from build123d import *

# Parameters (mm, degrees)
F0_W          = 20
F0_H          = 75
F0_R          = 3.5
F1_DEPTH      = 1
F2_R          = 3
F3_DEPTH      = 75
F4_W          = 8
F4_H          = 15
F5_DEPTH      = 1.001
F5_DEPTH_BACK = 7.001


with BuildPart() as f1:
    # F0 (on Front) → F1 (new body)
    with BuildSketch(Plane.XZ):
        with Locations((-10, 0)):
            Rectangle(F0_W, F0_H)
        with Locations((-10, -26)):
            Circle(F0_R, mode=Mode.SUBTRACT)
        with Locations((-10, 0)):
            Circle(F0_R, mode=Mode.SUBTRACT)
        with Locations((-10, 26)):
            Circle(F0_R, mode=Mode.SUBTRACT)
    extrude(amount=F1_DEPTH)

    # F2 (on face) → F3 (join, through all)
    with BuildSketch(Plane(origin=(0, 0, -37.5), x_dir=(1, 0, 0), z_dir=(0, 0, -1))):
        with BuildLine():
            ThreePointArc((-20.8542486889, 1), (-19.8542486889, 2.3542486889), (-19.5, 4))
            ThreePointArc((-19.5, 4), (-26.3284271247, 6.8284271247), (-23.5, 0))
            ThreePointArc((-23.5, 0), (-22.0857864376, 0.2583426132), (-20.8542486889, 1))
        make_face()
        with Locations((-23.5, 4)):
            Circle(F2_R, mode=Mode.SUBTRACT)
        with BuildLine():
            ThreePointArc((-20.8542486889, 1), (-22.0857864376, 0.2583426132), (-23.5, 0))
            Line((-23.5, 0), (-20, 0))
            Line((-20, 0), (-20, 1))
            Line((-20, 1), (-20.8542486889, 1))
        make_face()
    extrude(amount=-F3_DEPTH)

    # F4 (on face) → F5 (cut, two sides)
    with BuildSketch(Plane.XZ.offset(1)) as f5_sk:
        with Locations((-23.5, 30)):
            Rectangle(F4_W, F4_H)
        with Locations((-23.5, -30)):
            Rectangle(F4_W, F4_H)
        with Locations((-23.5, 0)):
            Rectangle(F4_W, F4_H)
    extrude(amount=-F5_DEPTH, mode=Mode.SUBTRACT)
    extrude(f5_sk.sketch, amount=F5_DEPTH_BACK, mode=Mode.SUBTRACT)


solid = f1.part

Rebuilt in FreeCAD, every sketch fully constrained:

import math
import FreeCAD as App
import Part
import Sketcher

V = App.Vector


def add_polygon(sketch, points):
    """Adds a closed chain of lines whose ends are joined by coincident constraints."""
    first, n = sketch.GeometryCount, len(points)
    for a, b in zip(points, points[1:] + points[:1]):
        sketch.addGeometry(Part.LineSegment(App.Vector(*a, 0), App.Vector(*b, 0)), False)
    for i in range(n):
        sketch.addConstraint(Sketcher.Constraint("Coincident", first + i, 2, first + (i + 1) % n, 1))

doc = App.newDocument("Part")
body = doc.addObject("PartDesign::Body", "Body")

# Sketch on XZ plane
sketch1 = body.newObject("Sketcher::SketchObject", "Sketch")
sketch1.AttachmentSupport = (doc.getObject("XZ_Plane"), [""])
sketch1.MapMode = "FlatFace"
add_polygon(sketch1, [(-20, 37.5), (-20, -37.5), (0, -37.5), (0, 37.5)])  # lines 0-3
sketch1.addGeometry(Part.Circle(V(-10, -26, 0), V(0, 0, 1), 3.5), False)  # 4
sketch1.addGeometry(Part.Circle(V(-10, 0, 0), V(0, 0, 1), 3.5), False)  # 5
sketch1.addGeometry(Part.Circle(V(-10, 26, 0), V(0, 0, 1), 3.5), False)  # 6
sketch1.addConstraint(Sketcher.Constraint("Vertical", 0))
sketch1.addConstraint(Sketcher.Constraint("Horizontal", 1))
sketch1.addConstraint(Sketcher.Constraint("Vertical", 2))
sketch1.addConstraint(Sketcher.Constraint("Horizontal", 3))
sketch1.addConstraint(Sketcher.Constraint("Equal", 4, 5))
sketch1.addConstraint(Sketcher.Constraint("Equal", 5, 6))
sketch1.addConstraint(Sketcher.Constraint("Symmetric", 1, 2, 2, 2, -1, 1))
sketch1.addConstraint(Sketcher.Constraint("Symmetric", 4, 3, 6, 3, -1))
sketch1.addConstraint(Sketcher.Constraint("PointOnObject", 5, 3, -1))
sketch1.addConstraint(Sketcher.Constraint("Vertical", 4, 3, 5, 3))
sketch1.addConstraint(Sketcher.Constraint("Diameter", 4, 7.0))
sketch1.addConstraint(Sketcher.Constraint("DistanceX", 1, 1, 1, 2, 20.0))
sketch1.addConstraint(Sketcher.Constraint("DistanceY", 0, 2, 0, 1, 75.0))
sketch1.addConstraint(Sketcher.Constraint("DistanceX", 4, 3, -1, 1, 10.0))
sketch1.addConstraint(Sketcher.Constraint("DistanceY", 4, 3, -1, 1, 26.0))
pad1 = body.newObject("PartDesign::Pad", "Pad")
pad1.Profile = sketch1
pad1.Length = 1

# Sketch on XY plane
sketch2 = body.newObject("Sketcher::SketchObject", "Sketch001")
sketch2.AttachmentSupport = (doc.getObject("XY_Plane"), [""])
sketch2.MapMode = "FlatFace"
sketch2.AttachmentOffset = App.Placement(V(0, 0, -37.5), App.Rotation())
sketch2.addGeometry(Part.ArcOfCircle(Part.Circle(V(-23.5, -4, 0), V(0, 0, 1), 4), math.radians(0), math.radians(49)), False)
sketch2.addGeometry(Part.ArcOfCircle(Part.Circle(V(-23.5, -4, 0), V(0, 0, 1), 4), math.radians(90), math.radians(360)), False)
sketch2.addGeometry(Part.LineSegment(V(-23.5, 0, 0), V(-20, 0, 0)), False)
sketch2.addGeometry(Part.LineSegment(V(-20, 0, 0), V(-20, -1, 0)), False)
sketch2.addGeometry(Part.LineSegment(V(-20, -1, 0), V(-20.9, -1, 0)), False)
sketch2.addGeometry(Part.Circle(V(-23.5, -4, 0), V(0, 0, 1), 3), False)
sketch2.addConstraint(Sketcher.Constraint("Tangent", 0, 1, 1, 2))
sketch2.addConstraint(Sketcher.Constraint("Tangent", 1, 1, 2, 1))
sketch2.addConstraint(Sketcher.Constraint("Coincident", 2, 2, 3, 1))
sketch2.addConstraint(Sketcher.Constraint("Coincident", 3, 2, 4, 1))
sketch2.addConstraint(Sketcher.Constraint("Coincident", 4, 2, 0, 2))
sketch2.addConstraint(Sketcher.Constraint("Horizontal", 2))
sketch2.addConstraint(Sketcher.Constraint("Vertical", 3))
sketch2.addConstraint(Sketcher.Constraint("Horizontal", 4))
sketch2.addConstraint(Sketcher.Constraint("Coincident", 5, 3, 0, 3))
sketch2.addConstraint(Sketcher.Constraint("Equal", 0, 1))
sketch2.addConstraint(Sketcher.Constraint("PointOnObject", 1, 1, -1))
sketch2.addConstraint(Sketcher.Constraint("Horizontal", 5, 3, 0, 1))
sketch2.addConstraint(Sketcher.Constraint("Diameter", 5, 6.0))
sketch2.addConstraint(Sketcher.Constraint("Radius", 0, 4.0))
sketch2.addConstraint(Sketcher.Constraint("DistanceY", 3, 2, 3, 1, 1.0))
sketch2.addConstraint(Sketcher.Constraint("DistanceX", 2, 1, 2, 2, 3.5))
sketch2.addConstraint(Sketcher.Constraint("DistanceX", 2, 2, -1, 1, 20.0))
pad2 = body.newObject("PartDesign::Pad", "Pad001")
pad2.Profile = sketch2
pad2.Length = 75

# Sketch on XZ plane
sketch3 = body.newObject("Sketcher::SketchObject", "Sketch002")
sketch3.AttachmentSupport = (doc.getObject("XZ_Plane"), [""])
sketch3.MapMode = "FlatFace"
sketch3.AttachmentOffset = App.Placement(V(0, 0, 1), App.Rotation())
add_polygon(sketch3, [(-28, 38), (-28, 22), (-20, 22), (-20, 38)])  # lines 0-3
add_polygon(sketch3, [(-28, -22), (-28, -38), (-20, -38), (-20, -22)])  # lines 4-7
add_polygon(sketch3, [(-28, 8), (-28, -8), (-20, -8), (-20, 8)])  # lines 8-11
sketch3.addConstraint(Sketcher.Constraint("Vertical", 0))
sketch3.addConstraint(Sketcher.Constraint("Horizontal", 1))
sketch3.addConstraint(Sketcher.Constraint("Vertical", 2))
sketch3.addConstraint(Sketcher.Constraint("Horizontal", 3))
sketch3.addConstraint(Sketcher.Constraint("Vertical", 4))
sketch3.addConstraint(Sketcher.Constraint("Horizontal", 5))
sketch3.addConstraint(Sketcher.Constraint("Vertical", 6))
sketch3.addConstraint(Sketcher.Constraint("Horizontal", 7))
sketch3.addConstraint(Sketcher.Constraint("Vertical", 8))
sketch3.addConstraint(Sketcher.Constraint("Horizontal", 9))
sketch3.addConstraint(Sketcher.Constraint("Vertical", 10))
sketch3.addConstraint(Sketcher.Constraint("Horizontal", 11))
sketch3.addConstraint(Sketcher.Constraint("Symmetric", 3, 2, 4, 2, -1))
sketch3.addConstraint(Sketcher.Constraint("Symmetric", 1, 2, 6, 2, -1))
sketch3.addConstraint(Sketcher.Constraint("Vertical", 7, 2, 8, 2))
sketch3.addConstraint(Sketcher.Constraint("Vertical", 6, 2, 9, 2))
sketch3.addConstraint(Sketcher.Constraint("Equal", 6, 8))
sketch3.addConstraint(Sketcher.Constraint("DistanceX", 1, 1, 1, 2, 8.0))
sketch3.addConstraint(Sketcher.Constraint("DistanceY", 0, 2, 0, 1, 15.0))
sketch3.addConstraint(Sketcher.Constraint("DistanceY", 4, 2, 0, 2, 60.0))
sketch3.addConstraint(Sketcher.Constraint("DistanceY", 7, 2, 8, 2, 15.0))
sketch3.addConstraint(Sketcher.Constraint("DistanceX", 0, 2, -1, 1, 27.5))
pocket1 = body.newObject("PartDesign::Pocket", "Pocket")
pocket1.Profile = sketch3
pocket1.Type = "ThroughAll"
pocket1.Midplane = True

doc.recompute()
